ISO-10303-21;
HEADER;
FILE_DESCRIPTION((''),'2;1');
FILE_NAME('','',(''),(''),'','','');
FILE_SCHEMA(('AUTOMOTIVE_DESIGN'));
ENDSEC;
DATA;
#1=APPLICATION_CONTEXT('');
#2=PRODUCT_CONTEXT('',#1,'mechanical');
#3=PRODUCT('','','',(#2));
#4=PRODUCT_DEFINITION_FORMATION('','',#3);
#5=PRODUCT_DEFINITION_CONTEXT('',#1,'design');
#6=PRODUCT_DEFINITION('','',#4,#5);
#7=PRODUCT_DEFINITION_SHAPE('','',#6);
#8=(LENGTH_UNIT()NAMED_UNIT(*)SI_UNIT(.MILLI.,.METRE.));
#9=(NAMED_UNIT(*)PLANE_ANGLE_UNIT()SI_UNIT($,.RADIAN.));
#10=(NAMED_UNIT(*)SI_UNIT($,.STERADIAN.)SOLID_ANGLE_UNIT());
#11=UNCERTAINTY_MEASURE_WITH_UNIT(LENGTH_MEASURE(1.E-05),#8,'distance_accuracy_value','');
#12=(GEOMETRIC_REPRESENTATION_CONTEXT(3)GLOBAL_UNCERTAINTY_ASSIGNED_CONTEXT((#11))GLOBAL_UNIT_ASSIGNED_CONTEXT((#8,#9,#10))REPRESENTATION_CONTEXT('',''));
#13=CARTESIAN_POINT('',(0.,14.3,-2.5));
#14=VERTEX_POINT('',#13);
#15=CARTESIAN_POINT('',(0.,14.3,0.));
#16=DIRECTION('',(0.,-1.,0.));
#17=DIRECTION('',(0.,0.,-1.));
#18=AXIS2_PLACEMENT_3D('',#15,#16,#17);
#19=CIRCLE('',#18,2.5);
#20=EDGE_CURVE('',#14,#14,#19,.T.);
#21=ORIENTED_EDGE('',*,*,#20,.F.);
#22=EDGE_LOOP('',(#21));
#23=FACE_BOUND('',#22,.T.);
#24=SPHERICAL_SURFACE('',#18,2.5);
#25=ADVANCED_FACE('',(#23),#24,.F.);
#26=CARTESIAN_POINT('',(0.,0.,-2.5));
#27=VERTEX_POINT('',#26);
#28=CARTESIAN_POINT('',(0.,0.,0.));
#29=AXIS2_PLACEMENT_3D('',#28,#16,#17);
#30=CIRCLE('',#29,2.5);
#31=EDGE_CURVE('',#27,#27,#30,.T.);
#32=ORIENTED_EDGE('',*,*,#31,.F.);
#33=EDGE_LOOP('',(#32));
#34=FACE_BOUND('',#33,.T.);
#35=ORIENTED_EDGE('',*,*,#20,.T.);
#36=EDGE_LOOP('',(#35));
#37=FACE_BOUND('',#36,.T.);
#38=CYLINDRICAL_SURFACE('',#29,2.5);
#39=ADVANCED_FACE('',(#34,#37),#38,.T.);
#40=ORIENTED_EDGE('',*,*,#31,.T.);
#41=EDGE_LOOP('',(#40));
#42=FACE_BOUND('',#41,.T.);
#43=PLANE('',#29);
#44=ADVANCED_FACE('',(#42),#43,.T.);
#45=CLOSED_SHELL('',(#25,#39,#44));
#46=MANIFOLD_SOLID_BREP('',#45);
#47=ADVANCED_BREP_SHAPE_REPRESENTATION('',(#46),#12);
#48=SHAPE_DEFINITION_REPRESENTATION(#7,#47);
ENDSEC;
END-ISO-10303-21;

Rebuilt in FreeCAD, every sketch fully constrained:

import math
import FreeCAD as App
import Part
import Sketcher

V = App.Vector

doc = App.newDocument("Part")
params = doc.addObject("Spreadsheet::Sheet", "Params")
for row, (alias, value) in enumerate([
    ("sketch1_radius", "2.5 mm"),
    ("sketch1_width", "14.3 mm"),
    ("revolution_angle", "360 deg"),
], start=1):
    params.set(f"A{row}", alias)
    params.set(f"B{row}", "=" + value)
    params.setAlias(f"B{row}", alias)

body = doc.addObject("PartDesign::Body", "Body")

# Sketch on YZ plane
sketch1 = body.newObject("Sketcher::SketchObject", "Sketch")
sketch1.AttachmentSupport = (doc.getObject("YZ_Plane"), [""])
sketch1.MapMode = "FlatFace"
sketch1.addGeometry(Part.LineSegment(V(0, 0, 0), V(0, -2.5, 0)), False)
sketch1.addGeometry(Part.LineSegment(V(0, -2.5, 0), V(14.3, -2.5, 0)), False)
sketch1.addGeometry(Part.ArcOfCircle(Part.Circle(V(14.3, 0, 0), V(0, 0, 1), 2.5), math.radians(180), math.radians(270)), False)
sketch1.addGeometry(Part.LineSegment(V(11.8, 0, 0), V(0, 0, 0)), False)
sketch1.addConstraint(Sketcher.Constraint("Coincident", 0, 2, 1, 1))
sketch1.addConstraint(Sketcher.Constraint("Tangent", 1, 2, 2, 2))
sketch1.addConstraint(Sketcher.Constraint("Coincident", 2, 1, 3, 1))
sketch1.addConstraint(Sketcher.Constraint("Coincident", 3, 2, 0, 1))
sketch1.addConstraint(Sketcher.Constraint("Vertical", 0))
sketch1.addConstraint(Sketcher.Constraint("Horizontal", 1))
sketch1.addConstraint(Sketcher.Constraint("Horizontal", 3))
sketch1.addConstraint(Sketcher.Constraint("Coincident", 3, 2, -1, 1))
sketch1.addConstraint(Sketcher.Constraint("PointOnObject", 2, 3, -1))
sketch1.addConstraint(Sketcher.Constraint("Radius", 2, 2.5))
sketch1.addConstraint(Sketcher.Constraint("DistanceX", 1, 1, 1, 2, 14.3))
sketch1.setExpression("Constraints[9]", "Params.sketch1_radius")
sketch1.setExpression("Constraints[10]", "Params.sketch1_width")
revolution = body.newObject("PartDesign::Revolution", "Revolution")
revolution.Profile = sketch1
revolution.ReferenceAxis = (sketch1, ["H_Axis"])
revolution.setExpression("Angle", "Params.revolution_angle")

doc.recompute()
